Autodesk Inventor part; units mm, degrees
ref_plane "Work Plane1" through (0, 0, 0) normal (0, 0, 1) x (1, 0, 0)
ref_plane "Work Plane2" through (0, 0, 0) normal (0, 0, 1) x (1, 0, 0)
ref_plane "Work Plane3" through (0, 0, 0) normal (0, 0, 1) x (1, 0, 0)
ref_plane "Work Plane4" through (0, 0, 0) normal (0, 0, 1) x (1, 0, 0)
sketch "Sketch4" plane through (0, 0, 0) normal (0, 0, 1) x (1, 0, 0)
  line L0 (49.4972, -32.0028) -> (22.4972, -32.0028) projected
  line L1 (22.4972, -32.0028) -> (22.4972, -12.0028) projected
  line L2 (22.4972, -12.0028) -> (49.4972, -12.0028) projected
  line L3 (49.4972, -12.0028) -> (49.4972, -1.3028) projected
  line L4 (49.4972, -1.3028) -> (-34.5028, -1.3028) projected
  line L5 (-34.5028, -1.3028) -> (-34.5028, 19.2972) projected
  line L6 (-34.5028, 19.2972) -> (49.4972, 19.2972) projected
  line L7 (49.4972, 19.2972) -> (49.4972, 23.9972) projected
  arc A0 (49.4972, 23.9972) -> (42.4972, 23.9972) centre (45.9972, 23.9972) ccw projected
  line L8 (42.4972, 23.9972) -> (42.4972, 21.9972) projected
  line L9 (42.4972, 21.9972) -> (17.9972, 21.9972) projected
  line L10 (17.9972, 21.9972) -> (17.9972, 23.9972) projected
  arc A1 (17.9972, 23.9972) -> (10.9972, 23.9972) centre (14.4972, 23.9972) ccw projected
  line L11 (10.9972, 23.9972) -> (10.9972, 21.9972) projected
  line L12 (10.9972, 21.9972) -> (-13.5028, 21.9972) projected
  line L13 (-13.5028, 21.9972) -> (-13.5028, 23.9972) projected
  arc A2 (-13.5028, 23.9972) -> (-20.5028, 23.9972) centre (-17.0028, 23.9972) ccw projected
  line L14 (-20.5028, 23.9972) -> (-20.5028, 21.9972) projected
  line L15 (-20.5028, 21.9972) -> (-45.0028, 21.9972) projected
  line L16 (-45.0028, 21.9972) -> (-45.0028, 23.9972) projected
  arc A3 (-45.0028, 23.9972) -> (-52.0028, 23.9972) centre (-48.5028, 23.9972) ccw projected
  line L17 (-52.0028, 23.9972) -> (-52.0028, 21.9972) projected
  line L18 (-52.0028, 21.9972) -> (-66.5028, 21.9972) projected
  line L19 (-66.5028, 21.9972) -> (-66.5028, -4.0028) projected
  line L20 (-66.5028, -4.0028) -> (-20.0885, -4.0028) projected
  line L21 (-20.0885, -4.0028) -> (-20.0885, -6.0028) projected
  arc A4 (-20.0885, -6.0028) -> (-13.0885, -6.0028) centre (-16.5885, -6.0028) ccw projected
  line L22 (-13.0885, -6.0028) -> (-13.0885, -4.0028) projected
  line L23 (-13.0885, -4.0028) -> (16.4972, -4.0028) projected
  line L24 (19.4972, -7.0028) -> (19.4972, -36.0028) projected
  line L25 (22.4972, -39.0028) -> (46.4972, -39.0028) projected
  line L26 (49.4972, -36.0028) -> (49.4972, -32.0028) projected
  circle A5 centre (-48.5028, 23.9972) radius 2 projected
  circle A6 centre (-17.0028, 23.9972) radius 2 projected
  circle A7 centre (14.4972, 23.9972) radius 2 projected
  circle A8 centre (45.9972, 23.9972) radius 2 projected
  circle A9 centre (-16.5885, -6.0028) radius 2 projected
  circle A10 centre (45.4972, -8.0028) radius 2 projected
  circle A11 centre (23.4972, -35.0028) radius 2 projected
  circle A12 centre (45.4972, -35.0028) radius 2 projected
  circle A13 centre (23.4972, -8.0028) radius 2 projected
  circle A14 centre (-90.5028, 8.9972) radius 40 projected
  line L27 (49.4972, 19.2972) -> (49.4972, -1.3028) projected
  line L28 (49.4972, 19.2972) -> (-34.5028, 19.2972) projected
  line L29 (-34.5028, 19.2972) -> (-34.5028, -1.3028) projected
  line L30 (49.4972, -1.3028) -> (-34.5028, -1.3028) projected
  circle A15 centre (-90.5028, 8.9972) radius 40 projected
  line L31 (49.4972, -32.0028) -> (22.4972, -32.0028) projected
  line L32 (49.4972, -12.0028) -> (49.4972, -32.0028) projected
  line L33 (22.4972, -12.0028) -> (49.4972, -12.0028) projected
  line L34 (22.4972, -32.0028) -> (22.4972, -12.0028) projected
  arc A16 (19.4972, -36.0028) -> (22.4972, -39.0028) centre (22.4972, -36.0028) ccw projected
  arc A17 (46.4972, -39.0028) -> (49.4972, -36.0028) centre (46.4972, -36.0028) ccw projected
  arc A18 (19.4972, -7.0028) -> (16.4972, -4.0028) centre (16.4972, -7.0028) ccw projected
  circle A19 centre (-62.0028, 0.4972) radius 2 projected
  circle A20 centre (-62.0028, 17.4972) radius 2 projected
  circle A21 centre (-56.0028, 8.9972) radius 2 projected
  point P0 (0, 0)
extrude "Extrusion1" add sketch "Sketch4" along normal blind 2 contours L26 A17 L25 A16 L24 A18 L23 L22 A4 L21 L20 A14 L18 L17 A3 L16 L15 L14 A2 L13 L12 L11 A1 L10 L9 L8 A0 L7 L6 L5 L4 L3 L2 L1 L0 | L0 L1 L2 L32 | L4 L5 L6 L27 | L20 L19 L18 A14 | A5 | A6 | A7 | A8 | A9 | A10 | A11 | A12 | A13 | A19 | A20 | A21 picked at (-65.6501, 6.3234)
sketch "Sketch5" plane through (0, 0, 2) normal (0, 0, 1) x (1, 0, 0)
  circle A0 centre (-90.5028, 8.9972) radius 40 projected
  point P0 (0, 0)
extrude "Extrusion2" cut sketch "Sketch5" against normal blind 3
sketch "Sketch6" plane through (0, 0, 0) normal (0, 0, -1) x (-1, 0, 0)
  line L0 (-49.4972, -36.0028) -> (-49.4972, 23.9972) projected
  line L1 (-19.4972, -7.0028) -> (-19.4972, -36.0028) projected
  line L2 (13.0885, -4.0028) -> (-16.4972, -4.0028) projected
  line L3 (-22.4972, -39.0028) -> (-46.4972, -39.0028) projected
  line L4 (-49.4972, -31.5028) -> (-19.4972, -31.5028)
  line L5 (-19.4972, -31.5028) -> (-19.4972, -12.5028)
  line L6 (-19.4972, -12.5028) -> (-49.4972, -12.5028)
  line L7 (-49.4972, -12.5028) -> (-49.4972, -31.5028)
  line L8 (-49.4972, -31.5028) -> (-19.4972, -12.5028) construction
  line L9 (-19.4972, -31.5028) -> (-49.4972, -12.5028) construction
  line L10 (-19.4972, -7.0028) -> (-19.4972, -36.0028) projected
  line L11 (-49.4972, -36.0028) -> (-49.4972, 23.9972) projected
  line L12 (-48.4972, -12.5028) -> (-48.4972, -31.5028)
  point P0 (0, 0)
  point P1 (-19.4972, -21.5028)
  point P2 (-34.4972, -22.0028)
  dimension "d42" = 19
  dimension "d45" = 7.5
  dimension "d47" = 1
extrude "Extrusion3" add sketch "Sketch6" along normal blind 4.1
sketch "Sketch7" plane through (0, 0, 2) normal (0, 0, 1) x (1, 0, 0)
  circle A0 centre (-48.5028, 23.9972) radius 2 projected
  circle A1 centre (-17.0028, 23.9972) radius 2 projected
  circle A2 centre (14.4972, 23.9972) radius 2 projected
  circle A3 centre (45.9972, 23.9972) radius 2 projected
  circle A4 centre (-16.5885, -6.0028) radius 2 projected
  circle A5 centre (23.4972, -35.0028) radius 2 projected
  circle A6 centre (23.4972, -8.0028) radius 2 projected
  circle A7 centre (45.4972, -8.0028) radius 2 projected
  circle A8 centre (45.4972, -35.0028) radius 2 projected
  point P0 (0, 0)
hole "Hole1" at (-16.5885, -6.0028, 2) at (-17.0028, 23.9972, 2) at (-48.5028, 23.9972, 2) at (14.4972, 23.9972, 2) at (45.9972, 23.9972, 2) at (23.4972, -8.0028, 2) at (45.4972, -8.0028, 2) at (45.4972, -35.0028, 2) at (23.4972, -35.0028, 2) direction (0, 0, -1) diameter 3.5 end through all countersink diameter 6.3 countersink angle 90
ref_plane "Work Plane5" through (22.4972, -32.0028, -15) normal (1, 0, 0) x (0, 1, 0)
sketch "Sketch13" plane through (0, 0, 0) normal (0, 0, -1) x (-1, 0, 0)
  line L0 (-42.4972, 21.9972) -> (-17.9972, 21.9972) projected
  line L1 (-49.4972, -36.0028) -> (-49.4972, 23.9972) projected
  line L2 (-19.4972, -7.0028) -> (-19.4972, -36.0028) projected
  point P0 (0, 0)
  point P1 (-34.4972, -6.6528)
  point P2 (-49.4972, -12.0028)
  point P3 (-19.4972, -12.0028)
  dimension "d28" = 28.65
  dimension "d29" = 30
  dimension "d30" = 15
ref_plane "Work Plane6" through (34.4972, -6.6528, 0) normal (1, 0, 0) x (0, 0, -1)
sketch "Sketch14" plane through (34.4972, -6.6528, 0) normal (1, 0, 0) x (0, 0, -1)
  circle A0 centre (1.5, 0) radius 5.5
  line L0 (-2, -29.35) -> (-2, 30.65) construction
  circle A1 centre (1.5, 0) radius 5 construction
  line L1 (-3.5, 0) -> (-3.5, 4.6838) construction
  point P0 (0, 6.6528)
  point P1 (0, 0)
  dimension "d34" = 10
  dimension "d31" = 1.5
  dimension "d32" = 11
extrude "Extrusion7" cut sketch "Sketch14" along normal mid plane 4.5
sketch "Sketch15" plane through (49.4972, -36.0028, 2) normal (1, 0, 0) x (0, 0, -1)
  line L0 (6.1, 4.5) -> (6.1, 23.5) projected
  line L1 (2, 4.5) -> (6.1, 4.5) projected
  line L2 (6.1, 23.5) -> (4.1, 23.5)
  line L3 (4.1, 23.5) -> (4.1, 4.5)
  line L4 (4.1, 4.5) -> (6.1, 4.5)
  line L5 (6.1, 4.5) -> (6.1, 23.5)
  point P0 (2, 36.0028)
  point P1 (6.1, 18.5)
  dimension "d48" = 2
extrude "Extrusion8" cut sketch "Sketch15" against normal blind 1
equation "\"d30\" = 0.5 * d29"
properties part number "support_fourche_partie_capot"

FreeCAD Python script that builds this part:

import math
import FreeCAD as App
import Part
import Sketcher
from FreeCAD import Vector

doc = App.newDocument("Part")
body = doc.addObject("PartDesign::Body", "Body")

# Sketch on XY plane
sketch1 = body.newObject("Sketcher::SketchObject", "Sketch")
sketch1.AttachmentSupport = (doc.getObject("XY_Plane"), [""])
sketch1.MapMode = "FlatFace"
sketch1.addGeometry([
    Part.LineSegment(Vector(49.5, -36, 0), Vector(49.5, 24, 0)),  # 0
    Part.ArcOfCircle(Part.Circle(Vector(46, 24, 0), Vector(0, 0, 1), 3.5), math.radians(0), math.radians(180)),  # 1
    Part.LineSegment(Vector(42.5, 24, 0), Vector(42.5, 22, 0)),  # 2
    Part.LineSegment(Vector(42.5, 22, 0), Vector(18, 22, 0)),  # 3
    Part.LineSegment(Vector(18, 22, 0), Vector(18, 24, 0)),  # 4
    Part.ArcOfCircle(Part.Circle(Vector(14.5, 24, 0), Vector(0, 0, 1), 3.5), math.radians(0), math.radians(180)),  # 5
    Part.LineSegment(Vector(11, 24, 0), Vector(11, 22, 0)),  # 6
    Part.LineSegment(Vector(11, 22, 0), Vector(-13.5, 22, 0)),  # 7
    Part.LineSegment(Vector(-13.5, 22, 0), Vector(-13.5, 24, 0)),  # 8
    Part.ArcOfCircle(Part.Circle(Vector(-17, 24, 0), Vector(0, 0, 1), 3.5), math.radians(0), math.radians(180)),  # 9
    Part.LineSegment(Vector(-20.5, 24, 0), Vector(-20.5, 22, 0)),  # 10
    Part.LineSegment(Vector(-20.5, 22, 0), Vector(-45, 22, 0)),  # 11
    Part.LineSegment(Vector(-45, 22, 0), Vector(-45, 24, 0)),  # 12
    Part.ArcOfCircle(Part.Circle(Vector(-48.5, 24, 0), Vector(0, 0, 1), 3.5), math.radians(0), math.radians(180)),  # 13
    Part.LineSegment(Vector(-52, 24, 0), Vector(-52, 22, 0)),  # 14
    Part.LineSegment(Vector(-52, 22, 0), Vector(-66.5, 22, 0)),  # 15
    Part.LineSegment(Vector(-66.5, 22, 0), Vector(-66.5, -4, 0)),  # 16
    Part.LineSegment(Vector(-66.5, -4, 0), Vector(-20.1, -4, 0)),  # 17
    Part.LineSegment(Vector(-20.1, -4, 0), Vector(-20.1, -6, 0)),  # 18
    Part.ArcOfCircle(Part.Circle(Vector(-16.6, -6, 0), Vector(0, 0, 1), 3.5), math.radians(180), math.radians(360)),  # 19
    Part.LineSegment(Vector(-13.1, -6, 0), Vector(-13.1, -4, 0)),  # 20
    Part.LineSegment(Vector(-13.1, -4, 0), Vector(16.5, -4, 0)),  # 21
    Part.ArcOfCircle(Part.Circle(Vector(16.5, -7, 0), Vector(0, 0, 1), 3), math.radians(0), math.radians(90)),  # 22
    Part.LineSegment(Vector(19.5, -7, 0), Vector(19.5, -36, 0)),  # 23
    Part.ArcOfCircle(Part.Circle(Vector(22.5, -36, 0), Vector(0, 0, 1), 3), math.radians(180), math.radians(270)),  # 24
    Part.LineSegment(Vector(22.5, -39, 0), Vector(46.5, -39, 0)),  # 25
    Part.ArcOfCircle(Part.Circle(Vector(46.5, -36, 0), Vector(0, 0, 1), 3), math.radians(-90), math.radians(0)),  # 26
], False)
sketch1.addConstraint([
    Sketcher.Constraint("Tangent", 0, 2, 1, 1),
    Sketcher.Constraint("Tangent", 1, 2, 2, 1),
    Sketcher.Constraint("Coincident", 2, 2, 3, 1),
    Sketcher.Constraint("Coincident", 3, 2, 4, 1),
    Sketcher.Constraint("Tangent", 4, 2, 5, 1),
    Sketcher.Constraint("Tangent", 5, 2, 6, 1),
    Sketcher.Constraint("Coincident", 6, 2, 7, 1),
    Sketcher.Constraint("Coincident", 7, 2, 8, 1),
    Sketcher.Constraint("Tangent", 8, 2, 9, 1),
    Sketcher.Constraint("Tangent", 9, 2, 10, 1),
    Sketcher.Constraint("Coincident", 10, 2, 11, 1),
    Sketcher.Constraint("Coincident", 11, 2, 12, 1),
    Sketcher.Constraint("Tangent", 12, 2, 13, 1),
    Sketcher.Constraint("Tangent", 13, 2, 14, 1),
    Sketcher.Constraint("Coincident", 14, 2, 15, 1),
    Sketcher.Constraint("Coincident", 15, 2, 16, 1),
    Sketcher.Constraint("Coincident", 16, 2, 17, 1),
    Sketcher.Constraint("Coincident", 17, 2, 18, 1),
    Sketcher.Constraint("Tangent", 18, 2, 19, 1),
    Sketcher.Constraint("Tangent", 19, 2, 20, 1),
    Sketcher.Constraint("Coincident", 20, 2, 21, 1),
    Sketcher.Constraint("Tangent", 21, 2, 22, 2),
    Sketcher.Constraint("Tangent", 22, 1, 23, 1),
    Sketcher.Constraint("Tangent", 23, 2, 24, 1),
    Sketcher.Constraint("Tangent", 24, 2, 25, 1),
    Sketcher.Constraint("Tangent", 25, 2, 26, 1),
    Sketcher.Constraint("Tangent", 26, 2, 0, 1),
    Sketcher.Constraint("Vertical", 0),
    Sketcher.Constraint("Vertical", 2),
    Sketcher.Constraint("Horizontal", 3),
    Sketcher.Constraint("Vertical", 4),
    Sketcher.Constraint("Vertical", 6),
    Sketcher.Constraint("Horizontal", 7),
    Sketcher.Constraint("Vertical", 8),
    Sketcher.Constraint("Vertical", 10),
    Sketcher.Constraint("Horizontal", 11),
    Sketcher.Constraint("Vertical", 12),
    Sketcher.Constraint("Vertical", 14),
    Sketcher.Constraint("Horizontal", 15),
    Sketcher.Constraint("Vertical", 16),
    Sketcher.Constraint("Horizontal", 17),
    Sketcher.Constraint("Vertical", 18),
    Sketcher.Constraint("Vertical", 20),
    Sketcher.Constraint("Horizontal", 21),
    Sketcher.Constraint("Vertical", 23),
    Sketcher.Constraint("Horizontal", 25),
    Sketcher.Constraint("Equal", 1, 5),
    Sketcher.Constraint("Equal", 5, 9),
    Sketcher.Constraint("Equal", 9, 13),
    Sketcher.Constraint("Equal", 13, 19),
    Sketcher.Constraint("Equal", 22, 24),
    Sketcher.Constraint("Equal", 24, 26),
    Sketcher.Constraint("Horizontal", 1, 3, 5, 3),
    Sketcher.Constraint("Horizontal", 5, 3, 9, 3),
    Sketcher.Constraint("Horizontal", 9, 3, 13, 3),
    Sketcher.Constraint("Horizontal", 3, 2, 6, 2),
    Sketcher.Constraint("Horizontal", 7, 2, 10, 2),
    Sketcher.Constraint("Horizontal", 11, 2, 14, 2),
    Sketcher.Constraint("Horizontal", 17, 2, 20, 2),
    Sketcher.Constraint("Equal", 3, 7),
    Sketcher.Constraint("Equal", 7, 11),
    Sketcher.Constraint("Equal", 14, 18),
    Sketcher.Constraint("Radius", 22, 3.0),
    Sketcher.Constraint("Radius", 1, 3.5),
    Sketcher.Constraint("DistanceX", 25, 1, 25, 2, 24.0),
    Sketcher.Constraint("DistanceY", 0, 1, 0, 2, 60.0),
    Sketcher.Constraint("DistanceY", 2, 2, 2, 1, 2.0),
    Sketcher.Constraint("DistanceY", 16, 2, 16, 1, 26.0),
    Sketcher.Constraint("DistanceX", 3, 2, 3, 1, 24.5),
    Sketcher.Constraint("DistanceX", 15, 2, 15, 1, 14.5),
    Sketcher.Constraint("DistanceX", 17, 1, 17, 2, 46.4143),
    Sketcher.Constraint("DistanceX", -1, 1, 1, 3, 45.9972),
    Sketcher.Constraint("DistanceY", -1, 1, 1, 3, 23.9972),
])
pad1 = body.newObject("PartDesign::Pad", "Pad")
pad1.Profile = sketch1
pad1.Length = 2

# Sketch on XY plane
sketch2 = body.newObject("Sketcher::SketchObject", "Sketch001")
sketch2.AttachmentSupport = (doc.getObject("XY_Plane"), [""])
sketch2.MapMode = "FlatFace"
sketch2.AttachmentOffset = App.Placement(Vector(0, 0, 2), App.Rotation())
sketch2.addGeometry(Part.Circle(Vector(-91, 9, 0), Vector(0, 0, 1), 40), False)
sketch2.addConstraint([
    Sketcher.Constraint("Diameter", 0, 80.0),
    Sketcher.Constraint("DistanceX", 0, 3, -1, 1, 90.5028),
    Sketcher.Constraint("DistanceY", -1, 1, 0, 3, 8.9972),
])
pocket1 = body.newObject("PartDesign::Pocket", "Pocket")
pocket1.Profile = sketch2
pocket1.Length = 3

# Sketch on XY plane
sketch3 = body.newObject("Sketcher::SketchObject", "Sketch002")
sketch3.AttachmentSupport = (doc.getObject("XY_Plane"), [""])
sketch3.MapMode = "FlatFace"
sketch3.addGeometry([
    Part.LineSegment(Vector(49, -13, 0), Vector(49, -32, 0)),
    Part.LineSegment(Vector(49, -32, 0), Vector(19, -32, 0)),
    Part.LineSegment(Vector(19, -32, 0), Vector(19, -13, 0)),
    Part.LineSegment(Vector(19, -13, 0), Vector(49, -13, 0)),
], False)
sketch3.addConstraint([
    Sketcher.Constraint("Coincident", 0, 2, 1, 1),
    Sketcher.Constraint("Coincident", 1, 2, 2, 1),
    Sketcher.Constraint("Coincident", 2, 2, 3, 1),
    Sketcher.Constraint("Coincident", 3, 2, 0, 1),
    Sketcher.Constraint("Vertical", 0),
    Sketcher.Constraint("Horizontal", 1),
    Sketcher.Constraint("Vertical", 2),
    Sketcher.Constraint("Horizontal", 3),
    Sketcher.Constraint("DistanceY", 0, 2, 0, 1, 19.0),
    Sketcher.Constraint("DistanceX", 1, 2, 1, 1, 30.0),
    Sketcher.Constraint("DistanceX", -1, 1, 0, 2, 49.4972),
    Sketcher.Constraint("DistanceY", 0, 2, -1, 1, 31.5028),
])
pad2 = body.newObject("PartDesign::Pad", "Pad001")
pad2.Profile = sketch3
pad2.Length = 4.1
pad2.Reversed = True

# Sketch on XY plane
sketch4 = body.newObject("Sketcher::SketchObject", "Sketch003")
sketch4.AttachmentSupport = (doc.getObject("XY_Plane"), [""])
sketch4.MapMode = "FlatFace"
sketch4.AttachmentOffset = App.Placement(Vector(0, 0, 2), App.Rotation())
sketch4.addGeometry([
    Part.Circle(Vector(-16.6, -6, 0), Vector(0, 0, 1), 1.8),  # 0
    Part.Circle(Vector(-17, 24, 0), Vector(0, 0, 1), 1.8),  # 1
    Part.Circle(Vector(-48.5, 24, 0), Vector(0, 0, 1), 1.8),  # 2
    Part.Circle(Vector(14.5, 24, 0), Vector(0, 0, 1), 1.8),  # 3
    Part.Circle(Vector(46, 24, 0), Vector(0, 0, 1), 1.8),  # 4
    Part.Circle(Vector(23.5, -8, 0), Vector(0, 0, 1), 1.8),  # 5
    Part.Circle(Vector(45.5, -8, 0), Vector(0, 0, 1), 1.8),  # 6
    Part.Circle(Vector(45.5, -35, 0), Vector(0, 0, 1), 1.8),  # 7
    Part.Circle(Vector(23.5, -35, 0), Vector(0, 0, 1), 1.8),  # 8
], False)
sketch4.addConstraint([
    Sketcher.Constraint("Equal", 0, 1),
    Sketcher.Constraint("Equal", 1, 2),
    Sketcher.Constraint("Equal", 2, 3),
    Sketcher.Constraint("Equal", 3, 4),
    Sketcher.Constraint("Equal", 4, 5),
    Sketcher.Constraint("Equal", 5, 6),
    Sketcher.Constraint("Equal", 6, 7),
    Sketcher.Constraint("Equal", 7, 8),
    Sketcher.Constraint("Horizontal", 1, 3, 2, 3),
    Sketcher.Constraint("Horizontal", 2, 3, 3, 3),
    Sketcher.Constraint("Horizontal", 3, 3, 4, 3),
    Sketcher.Constraint("Horizontal", 5, 3, 6, 3),
    Sketcher.Constraint("Horizontal", 7, 3, 8, 3),
    Sketcher.Constraint("Vertical", 6, 3, 7, 3),
    Sketcher.Constraint("Vertical", 5, 3, 8, 3),
    Sketcher.Constraint("Diameter", 0, 3.5),
    Sketcher.Constraint("DistanceY", 0, 3, 1, 3, 30.0),
    Sketcher.Constraint("DistanceX", 2, 3, 3, 3, 63.0),
    Sketcher.Constraint("DistanceX", 1, 3, 4, 3, 63.0),
    Sketcher.Constraint("DistanceX", 3, 3, 5, 3, 9.0),
    Sketcher.Constraint("DistanceY", 5, 3, 3, 3, 32.0),
    Sketcher.Constraint("DistanceX", 5, 3, 6, 3, 22.0),
    Sketcher.Constraint("DistanceY", 7, 3, 6, 3, 27.0),
    Sketcher.Constraint("DistanceX", 2, 3, 1, 3, 31.5),
    Sketcher.Constraint("DistanceX", 0, 3, -1, 1, 16.5885),
    Sketcher.Constraint("DistanceY", 0, 3, -1, 1, 6.0028),
    Sketcher.Constraint("DistanceX", 1, 3, -1, 1, 17.0028),
])
doc.recompute()
hole = body.newObject("PartDesign::Hole", "Hole")
hole.Profile = sketch4
hole.ThreadType = "None"
hole.Diameter = 3.5
hole.DepthType = "ThroughAll"
hole.HoleCutType = "Countersink"
hole.HoleCutDiameter = 6.3
hole.HoleCutCountersinkAngle = 90

# Sketch on YZ plane
sketch5 = body.newObject("Sketcher::SketchObject", "Sketch004")
sketch5.AttachmentSupport = (doc.getObject("YZ_Plane"), [""])
sketch5.MapMode = "FlatFace"
sketch5.AttachmentOffset = App.Placement(Vector(0, 0, 34.4972), App.Rotation())
sketch5.addGeometry(Part.Circle(Vector(-7, -2, 0), Vector(0, 0, 1), 6), False)
sketch5.addConstraint([
    Sketcher.Constraint("Diameter", 0, 11.0),
    Sketcher.Constraint("DistanceY", 0, 3, -1, 1, 1.5),
    Sketcher.Constraint("DistanceX", 0, 3, -1, 1, 6.6528),
])
pocket2 = body.newObject("PartDesign::Pocket", "Pocket001")
pocket2.Profile = sketch5
pocket2.Length = 4.5
pocket2.Midplane = True

# Sketch on YZ plane
sketch6 = body.newObject("Sketcher::SketchObject", "Sketch005")
sketch6.AttachmentSupport = (doc.getObject("YZ_Plane"), [""])
sketch6.MapMode = "FlatFace"
sketch6.AttachmentOffset = App.Placement(Vector(0, 0, 49.4972), App.Rotation())
sketch6.addGeometry([
    Part.LineSegment(Vector(-31.5, -2.1, 0), Vector(-31.5, -4.1, 0)),
    Part.LineSegment(Vector(-31.5, -4.1, 0), Vector(-12.5, -4.1, 0)),
    Part.LineSegment(Vector(-12.5, -4.1, 0), Vector(-12.5, -2.1, 0)),
    Part.LineSegment(Vector(-12.5, -2.1, 0), Vector(-31.5, -2.1, 0)),
], False)
sketch6.addConstraint([
    Sketcher.Constraint("Coincident", 0, 2, 1, 1),
    Sketcher.Constraint("Coincident", 1, 2, 2, 1),
    Sketcher.Constraint("Coincident", 2, 2, 3, 1),
    Sketcher.Constraint("Coincident", 3, 2, 0, 1),
    Sketcher.Constraint("Vertical", 0),
    Sketcher.Constraint("Horizontal", 1),
    Sketcher.Constraint("Vertical", 2),
    Sketcher.Constraint("Horizontal", 3),
    Sketcher.Constraint("DistanceY", 0, 2, 0, 1, 2.0),
    Sketcher.Constraint("DistanceX", 1, 1, 1, 2, 19.0),
    Sketcher.Constraint("DistanceY", 0, 2, -1, 1, 4.1),
    Sketcher.Constraint("DistanceX", 0, 2, -1, 1, 31.5028),
])
pocket3 = body.newObject("PartDesign::Pocket", "Pocket002")
pocket3.Profile = sketch6
pocket3.Length = 1

doc.recompute()
